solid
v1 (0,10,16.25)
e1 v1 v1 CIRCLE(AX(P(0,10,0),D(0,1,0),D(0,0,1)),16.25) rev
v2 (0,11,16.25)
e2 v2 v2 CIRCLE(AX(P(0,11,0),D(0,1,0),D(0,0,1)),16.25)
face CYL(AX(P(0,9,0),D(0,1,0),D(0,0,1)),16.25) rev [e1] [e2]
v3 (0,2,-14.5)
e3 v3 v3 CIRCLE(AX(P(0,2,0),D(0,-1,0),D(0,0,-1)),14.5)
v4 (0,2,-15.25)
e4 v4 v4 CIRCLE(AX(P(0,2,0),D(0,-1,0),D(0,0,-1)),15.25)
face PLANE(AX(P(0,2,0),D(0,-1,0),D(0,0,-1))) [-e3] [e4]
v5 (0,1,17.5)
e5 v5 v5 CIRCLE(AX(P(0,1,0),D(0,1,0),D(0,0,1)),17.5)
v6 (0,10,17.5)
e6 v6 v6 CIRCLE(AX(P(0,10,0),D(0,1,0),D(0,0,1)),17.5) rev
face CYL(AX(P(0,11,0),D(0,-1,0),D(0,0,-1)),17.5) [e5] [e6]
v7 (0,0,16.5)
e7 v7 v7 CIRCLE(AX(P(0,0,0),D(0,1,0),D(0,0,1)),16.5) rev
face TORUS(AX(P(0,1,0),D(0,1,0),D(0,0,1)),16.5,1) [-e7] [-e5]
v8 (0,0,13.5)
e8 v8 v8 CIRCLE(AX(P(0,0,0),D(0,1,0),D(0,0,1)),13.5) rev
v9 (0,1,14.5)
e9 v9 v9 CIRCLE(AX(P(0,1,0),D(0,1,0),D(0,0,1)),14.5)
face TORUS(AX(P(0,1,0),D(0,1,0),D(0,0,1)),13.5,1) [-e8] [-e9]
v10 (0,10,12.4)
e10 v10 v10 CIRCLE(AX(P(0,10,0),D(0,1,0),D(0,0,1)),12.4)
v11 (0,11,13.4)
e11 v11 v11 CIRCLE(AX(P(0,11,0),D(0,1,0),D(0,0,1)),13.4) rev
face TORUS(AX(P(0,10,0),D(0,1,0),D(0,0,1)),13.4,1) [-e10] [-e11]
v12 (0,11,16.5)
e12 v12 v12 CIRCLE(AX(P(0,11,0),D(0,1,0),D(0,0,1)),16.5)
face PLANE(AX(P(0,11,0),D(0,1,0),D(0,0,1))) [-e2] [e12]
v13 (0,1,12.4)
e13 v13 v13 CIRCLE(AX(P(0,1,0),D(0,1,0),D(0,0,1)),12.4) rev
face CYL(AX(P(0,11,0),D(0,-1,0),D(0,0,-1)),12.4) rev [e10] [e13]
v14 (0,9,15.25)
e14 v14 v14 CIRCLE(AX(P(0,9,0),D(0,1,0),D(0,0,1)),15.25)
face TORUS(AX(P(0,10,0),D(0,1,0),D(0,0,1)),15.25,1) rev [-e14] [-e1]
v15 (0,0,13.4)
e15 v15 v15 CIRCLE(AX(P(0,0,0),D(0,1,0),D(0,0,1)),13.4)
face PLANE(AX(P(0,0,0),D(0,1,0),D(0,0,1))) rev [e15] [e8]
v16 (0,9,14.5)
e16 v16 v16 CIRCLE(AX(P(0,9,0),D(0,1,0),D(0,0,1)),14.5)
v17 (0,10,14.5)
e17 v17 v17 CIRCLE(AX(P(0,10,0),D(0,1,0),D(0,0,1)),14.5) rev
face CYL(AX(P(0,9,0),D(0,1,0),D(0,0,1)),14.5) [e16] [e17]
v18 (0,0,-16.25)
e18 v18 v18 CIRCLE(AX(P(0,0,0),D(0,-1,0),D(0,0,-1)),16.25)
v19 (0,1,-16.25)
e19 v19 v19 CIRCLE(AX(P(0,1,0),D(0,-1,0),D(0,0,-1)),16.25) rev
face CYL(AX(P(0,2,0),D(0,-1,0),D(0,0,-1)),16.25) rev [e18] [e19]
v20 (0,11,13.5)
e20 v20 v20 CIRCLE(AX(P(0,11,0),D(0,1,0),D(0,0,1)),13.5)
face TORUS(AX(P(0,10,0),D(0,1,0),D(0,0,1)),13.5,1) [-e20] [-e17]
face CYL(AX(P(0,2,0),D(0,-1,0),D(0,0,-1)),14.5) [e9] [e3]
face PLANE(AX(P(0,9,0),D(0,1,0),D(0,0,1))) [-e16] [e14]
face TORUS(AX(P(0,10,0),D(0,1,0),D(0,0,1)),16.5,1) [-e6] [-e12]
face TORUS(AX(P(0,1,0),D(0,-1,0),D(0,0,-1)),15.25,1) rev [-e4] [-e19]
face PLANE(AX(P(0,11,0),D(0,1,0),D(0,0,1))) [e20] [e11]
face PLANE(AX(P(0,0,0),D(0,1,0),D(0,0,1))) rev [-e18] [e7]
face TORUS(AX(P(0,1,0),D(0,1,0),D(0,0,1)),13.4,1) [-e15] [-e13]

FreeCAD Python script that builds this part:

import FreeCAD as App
import Part
import Sketcher

V = App.Vector


def edges_at(feature, points):
    """Names of the edges that pass closest to the given points."""
    edges = feature.Shape.Edges
    near = lambda p: min(range(len(edges)), key=lambda i: edges[i].distToShape(Part.Vertex(*p))[0])
    return sorted({f"Edge{near(p) + 1}" for p in points})

doc = App.newDocument("Part")
body = doc.addObject("PartDesign::Body", "Body")

sketch1 = body.newObject("Sketcher::SketchObject", "Sketch")
sketch1.AttachmentSupport = (doc.getObject("XZ_Plane"), [""])
sketch1.MapMode = "FlatFace"
sketch1.addGeometry([
    Part.Circle(V(0, 0, 0), V(0, 0, 1), 18),
    Part.Circle(V(0, 0, 0), V(0, 0, 1), 12),
], False)
sketch1.addConstraint([
    Sketcher.Constraint("Coincident", 0, 3, -1, 1),
    Sketcher.Constraint("Coincident", 1, 3, -1, 1),
    Sketcher.Constraint("Diameter", 0, 35.0),
    Sketcher.Constraint("Diameter", 1, 24.8),
])
pad1 = body.newObject("PartDesign::Pad", "Pad")
pad1.Profile = sketch1
pad1.Length = 11
pad1.Reversed = True
doc.recompute()

fillet = body.newObject("PartDesign::Fillet", "Fillet")
fillet.Base = (pad1, edges_at(pad1, [(0, 0, -12.4), (0, 11, -12.4)]))
fillet.Radius = 1

sketch2 = body.newObject("Sketcher::SketchObject", "Sketch001")
sketch2.AttachmentSupport = (doc.getObject("XZ_Plane"), [""])
sketch2.MapMode = "FlatFace"
sketch2.AttachmentOffset = App.Placement(V(0, 0, -11), App.Rotation())
sketch2.addGeometry([
    Part.Circle(V(0, 0, 0), V(0, 0, 1), 16),
    Part.Circle(V(0, 0, 0), V(0, 0, 1), 14),
], False)
sketch2.addConstraint([
    Sketcher.Constraint("Coincident", 0, 3, -1, 1),
    Sketcher.Constraint("Coincident", 1, 3, -1, 1),
    Sketcher.Constraint("Diameter", 1, 29.0),
    Sketcher.Constraint("Diameter", 0, 32.5),
])
pocket1 = body.newObject("PartDesign::Pocket", "Pocket")
pocket1.Profile = sketch2
pocket1.Length = 2
pocket1.Reversed = True

sketch3 = body.newObject("Sketcher::SketchObject", "Sketch002")
sketch3.AttachmentSupport = (doc.getObject("XZ_Plane"), [""])
sketch3.MapMode = "FlatFace"
sketch3.AttachmentOffset = App.Placement(V(0, 0, -2), App.Rotation())
sketch3.addGeometry([
    Part.Circle(V(0, 0, 0), V(0, 0, 1), 16),
    Part.Circle(V(0, 0, 0), V(0, 0, 1), 14),
], False)
sketch3.addConstraint([
    Sketcher.Constraint("Coincident", 0, 3, -1, 1),
    Sketcher.Constraint("Coincident", 1, 3, -1, 1),
    Sketcher.Constraint("Diameter", 1, 29.0),
    Sketcher.Constraint("Diameter", 0, 32.5),
])
pocket2 = body.newObject("PartDesign::Pocket", "Pocket001")
pocket2.Profile = sketch3
pocket2.Length = 2
pocket2.Reversed = True
doc.recompute()

fillet2 = body.newObject("PartDesign::Fillet", "Fillet001")
fillet2.Base = (pocket2, edges_at(pocket2, [
    (0, 11, -14.5),
    (0, 0, -17.5),
    (0, 0, -14.5),
    (0, 11, -17.5),
]))
fillet2.Radius = 1
doc.recompute()

fillet3 = body.newObject("PartDesign::Fillet", "Fillet002")
fillet3.Base = (fillet2, edges_at(fillet2, [(0, 9, -16.25), (0, 2, -16.25)]))
fillet3.Radius = 1

doc.recompute()
